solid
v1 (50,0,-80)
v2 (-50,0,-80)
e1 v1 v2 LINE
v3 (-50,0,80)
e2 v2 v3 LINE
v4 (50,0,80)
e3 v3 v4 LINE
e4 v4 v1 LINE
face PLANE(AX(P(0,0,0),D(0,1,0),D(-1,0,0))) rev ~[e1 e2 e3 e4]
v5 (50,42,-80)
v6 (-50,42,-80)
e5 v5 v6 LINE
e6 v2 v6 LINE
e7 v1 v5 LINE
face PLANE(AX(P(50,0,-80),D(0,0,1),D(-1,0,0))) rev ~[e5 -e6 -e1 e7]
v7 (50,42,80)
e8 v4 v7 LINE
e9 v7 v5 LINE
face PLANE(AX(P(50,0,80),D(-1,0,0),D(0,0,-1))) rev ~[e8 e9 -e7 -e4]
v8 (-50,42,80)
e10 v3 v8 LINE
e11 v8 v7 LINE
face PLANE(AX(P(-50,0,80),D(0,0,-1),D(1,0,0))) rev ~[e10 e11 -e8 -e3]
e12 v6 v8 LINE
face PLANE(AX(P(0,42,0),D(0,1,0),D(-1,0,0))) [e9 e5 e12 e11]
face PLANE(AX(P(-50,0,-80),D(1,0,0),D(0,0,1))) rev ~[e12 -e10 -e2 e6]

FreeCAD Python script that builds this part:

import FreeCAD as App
import Part
import Sketcher

V = App.Vector

doc = App.newDocument("Part")
body = doc.addObject("PartDesign::Body", "Body")

# Sketch on XZ plane
sketch1 = doc.addObject("Sketcher::SketchObject", "Sketch")
body.addObject(sketch1)
sketch1.AttachmentSupport = (doc.XZ_Plane, [""])
sketch1.MapMode = "FlatFace"
sketch1.addGeometry(Part.LineSegment(V(-50, -80, 0), V(-50, 80, 0)), False)
sketch1.addGeometry(Part.LineSegment(V(-50, 80, 0), V(50, 80, 0)), False)
sketch1.addGeometry(Part.LineSegment(V(50, 80, 0), V(50, -80, 0)), False)
sketch1.addGeometry(Part.LineSegment(V(50, -80, 0), V(-50, -80, 0)), False)
sketch1.addConstraint(Sketcher.Constraint("Coincident", 0, 2, 1, 1))
sketch1.addConstraint(Sketcher.Constraint("Coincident", 1, 2, 2, 1))
sketch1.addConstraint(Sketcher.Constraint("Coincident", 2, 2, 3, 1))
sketch1.addConstraint(Sketcher.Constraint("Coincident", 3, 2, 0, 1))
sketch1.addConstraint(Sketcher.Constraint("Vertical", 0))
sketch1.addConstraint(Sketcher.Constraint("Horizontal", 1))
sketch1.addConstraint(Sketcher.Constraint("Vertical", 2))
sketch1.addConstraint(Sketcher.Constraint("Horizontal", 3))
sketch1.addConstraint(Sketcher.Constraint("Symmetric", 0, 2, 2, 2, -1, 1))
sketch1.addConstraint(Sketcher.Constraint("DistanceX", 1, 1, 1, 2, 100.0))
sketch1.addConstraint(Sketcher.Constraint("DistanceY", 0, 1, 0, 2, 160.0))
pad1 = doc.addObject("PartDesign::Pad", "Pad")
body.addObject(pad1)
pad1.Profile = sketch1
pad1.Length = 42
pad1.Reversed = True

doc.recompute()
